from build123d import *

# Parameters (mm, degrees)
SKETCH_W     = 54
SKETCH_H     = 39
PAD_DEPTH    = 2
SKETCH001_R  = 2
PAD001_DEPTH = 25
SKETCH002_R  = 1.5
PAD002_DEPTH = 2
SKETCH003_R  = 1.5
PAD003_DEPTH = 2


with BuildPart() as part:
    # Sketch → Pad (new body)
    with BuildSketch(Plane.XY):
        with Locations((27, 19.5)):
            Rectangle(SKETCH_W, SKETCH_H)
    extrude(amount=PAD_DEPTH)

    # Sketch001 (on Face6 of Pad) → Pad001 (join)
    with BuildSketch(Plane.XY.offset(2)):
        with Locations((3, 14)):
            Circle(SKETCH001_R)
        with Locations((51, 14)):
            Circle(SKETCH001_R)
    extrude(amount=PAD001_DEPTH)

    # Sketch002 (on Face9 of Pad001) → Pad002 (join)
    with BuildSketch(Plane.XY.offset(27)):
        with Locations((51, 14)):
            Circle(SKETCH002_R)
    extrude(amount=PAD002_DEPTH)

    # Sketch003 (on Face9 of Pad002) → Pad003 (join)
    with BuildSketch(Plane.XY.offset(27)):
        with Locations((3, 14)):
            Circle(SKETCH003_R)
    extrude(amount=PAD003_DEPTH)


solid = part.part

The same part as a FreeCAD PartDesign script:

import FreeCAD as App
import Part
import Sketcher


def add_polygon(sketch, points):
    """Adds a closed chain of lines whose ends are joined by coincident constraints."""
    first, n = sketch.GeometryCount, len(points)
    for a, b in zip(points, points[1:] + points[:1]):
        sketch.addGeometry(Part.LineSegment(App.Vector(*a, 0), App.Vector(*b, 0)), False)
    for i in range(n):
        sketch.addConstraint(Sketcher.Constraint("Coincident", first + i, 2, first + (i + 1) % n, 1))

doc = App.newDocument("Part")
body = doc.addObject("PartDesign::Body", "Body")

# Sketch on XY plane
sketch1 = body.newObject("Sketcher::SketchObject", "Sketch")
sketch1.AttachmentSupport = (doc.getObject("XY_Plane"), [""])
sketch1.MapMode = "FlatFace"
add_polygon(sketch1, [(0, 39), (0, 0), (54, 0), (54, 39)])  # lines 0-3
sketch1.addConstraint([
    Sketcher.Constraint("Vertical", 0),
    Sketcher.Constraint("Horizontal", 1),
    Sketcher.Constraint("Vertical", 2),
    Sketcher.Constraint("Horizontal", 3),
    Sketcher.Constraint("Coincident", 0, 2, -1, 1),
    Sketcher.Constraint("DistanceX", 1, 1, 1, 2, 54.0),
    Sketcher.Constraint("DistanceY", 0, 2, 0, 1, 39.0),
])
pad1 = body.newObject("PartDesign::Pad", "Pad")
pad1.Profile = sketch1
pad1.Length = 2

# Sketch on XY plane
sketch2 = body.newObject("Sketcher::SketchObject", "Sketch001")
sketch2.AttachmentSupport = (doc.getObject("XY_Plane"), [""])
sketch2.MapMode = "FlatFace"
sketch2.AttachmentOffset = App.Placement(App.Vector(0, 0, 2), App.Rotation())
sketch2.addGeometry([
    Part.Circle(App.Vector(3, 14, 0), App.Vector(0, 0, 1), 2),
    Part.Circle(App.Vector(51, 14, 0), App.Vector(0, 0, 1), 2),
], False)
sketch2.addConstraint([
    Sketcher.Constraint("Equal", 0, 1),
    Sketcher.Constraint("Horizontal", 0, 3, 1, 3),
    Sketcher.Constraint("Diameter", 0, 4.0),
    Sketcher.Constraint("DistanceX", -1, 1, 0, 3, 3.0),
    Sketcher.Constraint("DistanceY", -1, 1, 0, 3, 14.0),
    Sketcher.Constraint("DistanceX", -1, 1, 1, 3, 51.0),
])
pad2 = body.newObject("PartDesign::Pad", "Pad001")
pad2.Profile = sketch2
pad2.Length = 25

# Sketch on XY plane
sketch3 = body.newObject("Sketcher::SketchObject", "Sketch002")
sketch3.AttachmentSupport = (doc.getObject("XY_Plane"), [""])
sketch3.MapMode = "FlatFace"
sketch3.AttachmentOffset = App.Placement(App.Vector(0, 0, 27), App.Rotation())
sketch3.addGeometry(Part.Circle(App.Vector(51, 14, 0), App.Vector(0, 0, 1), 1.5), False)
sketch3.addConstraint([
    Sketcher.Constraint("Diameter", 0, 3.0),
    Sketcher.Constraint("DistanceX", -1, 1, 0, 3, 51.0),
    Sketcher.Constraint("DistanceY", -1, 1, 0, 3, 14.0),
])
pad3 = body.newObject("PartDesign::Pad", "Pad002")
pad3.Profile = sketch3
pad3.Length = 2

# Sketch on XY plane
sketch4 = body.newObject("Sketcher::SketchObject", "Sketch003")
sketch4.AttachmentSupport = (doc.getObject("XY_Plane"), [""])
sketch4.MapMode = "FlatFace"
sketch4.AttachmentOffset = App.Placement(App.Vector(0, 0, 27), App.Rotation())
sketch4.addGeometry(Part.Circle(App.Vector(3, 14, 0), App.Vector(0, 0, 1), 1.5), False)
sketch4.addConstraint([
    Sketcher.Constraint("Diameter", 0, 3.0),
    Sketcher.Constraint("DistanceX", -1, 1, 0, 3, 3.0),
    Sketcher.Constraint("DistanceY", -1, 1, 0, 3, 14.0),
])
pad4 = body.newObject("PartDesign::Pad", "Pad003")
pad4.Profile = sketch4
pad4.Length = 2

doc.recompute()
